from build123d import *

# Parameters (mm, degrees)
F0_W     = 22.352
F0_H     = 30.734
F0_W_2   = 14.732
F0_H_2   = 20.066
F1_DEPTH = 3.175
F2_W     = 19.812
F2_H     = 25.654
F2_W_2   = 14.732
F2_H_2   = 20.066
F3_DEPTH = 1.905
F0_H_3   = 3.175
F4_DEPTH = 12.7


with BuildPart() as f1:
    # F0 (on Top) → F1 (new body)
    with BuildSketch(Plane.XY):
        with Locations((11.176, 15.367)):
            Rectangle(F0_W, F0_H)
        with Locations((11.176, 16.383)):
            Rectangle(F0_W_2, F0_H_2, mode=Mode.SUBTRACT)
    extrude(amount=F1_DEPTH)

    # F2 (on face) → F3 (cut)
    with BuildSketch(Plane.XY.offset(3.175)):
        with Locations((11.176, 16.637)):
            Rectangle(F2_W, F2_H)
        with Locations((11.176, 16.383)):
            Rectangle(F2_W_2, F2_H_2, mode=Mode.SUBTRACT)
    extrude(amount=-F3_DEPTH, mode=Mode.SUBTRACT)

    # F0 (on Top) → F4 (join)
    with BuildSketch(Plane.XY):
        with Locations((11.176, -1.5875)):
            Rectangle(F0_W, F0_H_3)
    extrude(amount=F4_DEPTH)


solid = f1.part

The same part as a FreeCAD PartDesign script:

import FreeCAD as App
import Part
import Sketcher
from FreeCAD import Vector
Q = App.Units.Quantity


def add_polygon(sketch, points):
    """Adds a closed chain of lines whose ends are joined by coincident constraints."""
    first, n = sketch.GeometryCount, len(points)
    for a, b in zip(points, points[1:] + points[:1]):
        sketch.addGeometry(Part.LineSegment(App.Vector(*a, 0), App.Vector(*b, 0)), False)
    for i in range(n):
        sketch.addConstraint(Sketcher.Constraint("Coincident", first + i, 2, first + (i + 1) % n, 1))

doc = App.newDocument("Part")
params = doc.addObject("Spreadsheet::Sheet", "Params")
for row, (alias, value) in enumerate([
    ("sketch1_width", "0.88 in"),
    ("sketch1_width2", "0.58 in"),
    ("sketch1_height", "1.21 in"),
    ("sketch1_height2", "0.79 in"),
    ("pad1_length", "0.125 in"),
    ("sketch2_width", "0.78 in"),
    ("sketch2_width2", "0.58 in"),
    ("sketch2_height", "1.01 in"),
    ("sketch2_height2", "0.79 in"),
    ("pocket1_length", "0.075 in"),
    ("sketch3_width", "0.88 in"),
    ("sketch3_height", "0.125 in"),
    ("pad2_length", "0.5 in"),
], start=1):
    params.set(f"A{row}", alias)
    params.set(f"B{row}", "=" + value)
    params.setAlias(f"B{row}", alias)

body = doc.addObject("PartDesign::Body", "Body")

sketch1 = body.newObject("Sketcher::SketchObject", "Sketch")
sketch1.AttachmentSupport = (doc.getObject("XY_Plane"), [""])
sketch1.MapMode = "FlatFace"
add_polygon(sketch1, [(0, 31), (0, 0), (22, 0), (22, 31)])
add_polygon(sketch1, [(19, 6), (4, 6), (4, 26), (19, 26)])
sketch1.addConstraint([
    Sketcher.Constraint("Vertical", 0),
    Sketcher.Constraint("Horizontal", 1),
    Sketcher.Constraint("Vertical", 2),
    Sketcher.Constraint("Horizontal", 3),
    Sketcher.Constraint("Horizontal", 4),
    Sketcher.Constraint("Vertical", 5),
    Sketcher.Constraint("Horizontal", 6),
    Sketcher.Constraint("Vertical", 7),
    Sketcher.Constraint("Coincident", 0, 2, -1, 1),
    Sketcher.Constraint("DistanceX", 1, 1, 1, 2, Q("0.88 in")),
    Sketcher.Constraint("DistanceX", 4, 2, 4, 1, Q("0.58 in")),
    Sketcher.Constraint("DistanceY", 0, 2, 0, 1, Q("1.21 in")),
    Sketcher.Constraint("DistanceY", 5, 1, 5, 2, Q("0.79 in")),
    Sketcher.Constraint("DistanceX", -1, 1, 4, 2, Q("0.15 in")),
    Sketcher.Constraint("DistanceY", -1, 1, 4, 2, Q("0.25 in")),
])
sketch1.setExpression("Constraints[17]", "Params.sketch1_width")
sketch1.setExpression("Constraints[18]", "Params.sketch1_width2")
sketch1.setExpression("Constraints[19]", "Params.sketch1_height")
sketch1.setExpression("Constraints[20]", "Params.sketch1_height2")
pad1 = body.newObject("PartDesign::Pad", "Pad")
pad1.Profile = sketch1
pad1.setExpression("Length", "Params.pad1_length")

sketch2 = body.newObject("Sketcher::SketchObject", "Sketch001")
sketch2.AttachmentSupport = (doc.getObject("XY_Plane"), [""])
sketch2.MapMode = "FlatFace"
sketch2.AttachmentOffset = App.Placement(Vector(0, 0, 0.125 * 25.4), App.Rotation())
add_polygon(sketch2, [(1, 29), (1, 4), (21, 4), (21, 29)])
add_polygon(sketch2, [(19, 6), (4, 6), (4, 26), (19, 26)])
sketch2.addConstraint([
    Sketcher.Constraint("Vertical", 0),
    Sketcher.Constraint("Horizontal", 1),
    Sketcher.Constraint("Vertical", 2),
    Sketcher.Constraint("Horizontal", 3),
    Sketcher.Constraint("Horizontal", 4),
    Sketcher.Constraint("Vertical", 5),
    Sketcher.Constraint("Horizontal", 6),
    Sketcher.Constraint("Vertical", 7),
    Sketcher.Constraint("DistanceX", 1, 1, 1, 2, Q("0.78 in")),
    Sketcher.Constraint("DistanceX", 4, 2, 4, 1, Q("0.58 in")),
    Sketcher.Constraint("DistanceY", 0, 2, 0, 1, Q("1.01 in")),
    Sketcher.Constraint("DistanceY", 5, 1, 5, 2, Q("0.79 in")),
    Sketcher.Constraint("DistanceX", 0, 2, 4, 2, Q("0.1 in")),
    Sketcher.Constraint("DistanceY", 0, 2, 4, 2, Q("0.1 in")),
    Sketcher.Constraint("DistanceX", -1, 1, 0, 2, Q("0.05 in")),
    Sketcher.Constraint("DistanceY", -1, 1, 0, 2, Q("0.15 in")),
])
sketch2.setExpression("Constraints[16]", "Params.sketch2_width")
sketch2.setExpression("Constraints[17]", "Params.sketch2_width2")
sketch2.setExpression("Constraints[18]", "Params.sketch2_height")
sketch2.setExpression("Constraints[19]", "Params.sketch2_height2")
pocket1 = body.newObject("PartDesign::Pocket", "Pocket")
pocket1.Profile = sketch2
pocket1.setExpression("Length", "Params.pocket1_length")

sketch3 = body.newObject("Sketcher::SketchObject", "Sketch002")
sketch3.AttachmentSupport = (doc.getObject("XY_Plane"), [""])
sketch3.MapMode = "FlatFace"
add_polygon(sketch3, [(0, 0), (0, -3.2), (22.4, -3.2), (22.4, 0)])
sketch3.addConstraint([
    Sketcher.Constraint("Vertical", 0),
    Sketcher.Constraint("Horizontal", 1),
    Sketcher.Constraint("Vertical", 2),
    Sketcher.Constraint("Horizontal", 3),
    Sketcher.Constraint("Coincident", 3, 2, -1, 1),
    Sketcher.Constraint("DistanceX", 1, 1, 1, 2, Q("0.88 in")),
    Sketcher.Constraint("DistanceY", 0, 2, 0, 1, Q("0.125 in")),
])
sketch3.setExpression("Constraints[9]", "Params.sketch3_width")
sketch3.setExpression("Constraints[10]", "Params.sketch3_height")
pad2 = body.newObject("PartDesign::Pad", "Pad001")
pad2.Profile = sketch3
pad2.setExpression("Length", "Params.pad2_length")

doc.recompute()
